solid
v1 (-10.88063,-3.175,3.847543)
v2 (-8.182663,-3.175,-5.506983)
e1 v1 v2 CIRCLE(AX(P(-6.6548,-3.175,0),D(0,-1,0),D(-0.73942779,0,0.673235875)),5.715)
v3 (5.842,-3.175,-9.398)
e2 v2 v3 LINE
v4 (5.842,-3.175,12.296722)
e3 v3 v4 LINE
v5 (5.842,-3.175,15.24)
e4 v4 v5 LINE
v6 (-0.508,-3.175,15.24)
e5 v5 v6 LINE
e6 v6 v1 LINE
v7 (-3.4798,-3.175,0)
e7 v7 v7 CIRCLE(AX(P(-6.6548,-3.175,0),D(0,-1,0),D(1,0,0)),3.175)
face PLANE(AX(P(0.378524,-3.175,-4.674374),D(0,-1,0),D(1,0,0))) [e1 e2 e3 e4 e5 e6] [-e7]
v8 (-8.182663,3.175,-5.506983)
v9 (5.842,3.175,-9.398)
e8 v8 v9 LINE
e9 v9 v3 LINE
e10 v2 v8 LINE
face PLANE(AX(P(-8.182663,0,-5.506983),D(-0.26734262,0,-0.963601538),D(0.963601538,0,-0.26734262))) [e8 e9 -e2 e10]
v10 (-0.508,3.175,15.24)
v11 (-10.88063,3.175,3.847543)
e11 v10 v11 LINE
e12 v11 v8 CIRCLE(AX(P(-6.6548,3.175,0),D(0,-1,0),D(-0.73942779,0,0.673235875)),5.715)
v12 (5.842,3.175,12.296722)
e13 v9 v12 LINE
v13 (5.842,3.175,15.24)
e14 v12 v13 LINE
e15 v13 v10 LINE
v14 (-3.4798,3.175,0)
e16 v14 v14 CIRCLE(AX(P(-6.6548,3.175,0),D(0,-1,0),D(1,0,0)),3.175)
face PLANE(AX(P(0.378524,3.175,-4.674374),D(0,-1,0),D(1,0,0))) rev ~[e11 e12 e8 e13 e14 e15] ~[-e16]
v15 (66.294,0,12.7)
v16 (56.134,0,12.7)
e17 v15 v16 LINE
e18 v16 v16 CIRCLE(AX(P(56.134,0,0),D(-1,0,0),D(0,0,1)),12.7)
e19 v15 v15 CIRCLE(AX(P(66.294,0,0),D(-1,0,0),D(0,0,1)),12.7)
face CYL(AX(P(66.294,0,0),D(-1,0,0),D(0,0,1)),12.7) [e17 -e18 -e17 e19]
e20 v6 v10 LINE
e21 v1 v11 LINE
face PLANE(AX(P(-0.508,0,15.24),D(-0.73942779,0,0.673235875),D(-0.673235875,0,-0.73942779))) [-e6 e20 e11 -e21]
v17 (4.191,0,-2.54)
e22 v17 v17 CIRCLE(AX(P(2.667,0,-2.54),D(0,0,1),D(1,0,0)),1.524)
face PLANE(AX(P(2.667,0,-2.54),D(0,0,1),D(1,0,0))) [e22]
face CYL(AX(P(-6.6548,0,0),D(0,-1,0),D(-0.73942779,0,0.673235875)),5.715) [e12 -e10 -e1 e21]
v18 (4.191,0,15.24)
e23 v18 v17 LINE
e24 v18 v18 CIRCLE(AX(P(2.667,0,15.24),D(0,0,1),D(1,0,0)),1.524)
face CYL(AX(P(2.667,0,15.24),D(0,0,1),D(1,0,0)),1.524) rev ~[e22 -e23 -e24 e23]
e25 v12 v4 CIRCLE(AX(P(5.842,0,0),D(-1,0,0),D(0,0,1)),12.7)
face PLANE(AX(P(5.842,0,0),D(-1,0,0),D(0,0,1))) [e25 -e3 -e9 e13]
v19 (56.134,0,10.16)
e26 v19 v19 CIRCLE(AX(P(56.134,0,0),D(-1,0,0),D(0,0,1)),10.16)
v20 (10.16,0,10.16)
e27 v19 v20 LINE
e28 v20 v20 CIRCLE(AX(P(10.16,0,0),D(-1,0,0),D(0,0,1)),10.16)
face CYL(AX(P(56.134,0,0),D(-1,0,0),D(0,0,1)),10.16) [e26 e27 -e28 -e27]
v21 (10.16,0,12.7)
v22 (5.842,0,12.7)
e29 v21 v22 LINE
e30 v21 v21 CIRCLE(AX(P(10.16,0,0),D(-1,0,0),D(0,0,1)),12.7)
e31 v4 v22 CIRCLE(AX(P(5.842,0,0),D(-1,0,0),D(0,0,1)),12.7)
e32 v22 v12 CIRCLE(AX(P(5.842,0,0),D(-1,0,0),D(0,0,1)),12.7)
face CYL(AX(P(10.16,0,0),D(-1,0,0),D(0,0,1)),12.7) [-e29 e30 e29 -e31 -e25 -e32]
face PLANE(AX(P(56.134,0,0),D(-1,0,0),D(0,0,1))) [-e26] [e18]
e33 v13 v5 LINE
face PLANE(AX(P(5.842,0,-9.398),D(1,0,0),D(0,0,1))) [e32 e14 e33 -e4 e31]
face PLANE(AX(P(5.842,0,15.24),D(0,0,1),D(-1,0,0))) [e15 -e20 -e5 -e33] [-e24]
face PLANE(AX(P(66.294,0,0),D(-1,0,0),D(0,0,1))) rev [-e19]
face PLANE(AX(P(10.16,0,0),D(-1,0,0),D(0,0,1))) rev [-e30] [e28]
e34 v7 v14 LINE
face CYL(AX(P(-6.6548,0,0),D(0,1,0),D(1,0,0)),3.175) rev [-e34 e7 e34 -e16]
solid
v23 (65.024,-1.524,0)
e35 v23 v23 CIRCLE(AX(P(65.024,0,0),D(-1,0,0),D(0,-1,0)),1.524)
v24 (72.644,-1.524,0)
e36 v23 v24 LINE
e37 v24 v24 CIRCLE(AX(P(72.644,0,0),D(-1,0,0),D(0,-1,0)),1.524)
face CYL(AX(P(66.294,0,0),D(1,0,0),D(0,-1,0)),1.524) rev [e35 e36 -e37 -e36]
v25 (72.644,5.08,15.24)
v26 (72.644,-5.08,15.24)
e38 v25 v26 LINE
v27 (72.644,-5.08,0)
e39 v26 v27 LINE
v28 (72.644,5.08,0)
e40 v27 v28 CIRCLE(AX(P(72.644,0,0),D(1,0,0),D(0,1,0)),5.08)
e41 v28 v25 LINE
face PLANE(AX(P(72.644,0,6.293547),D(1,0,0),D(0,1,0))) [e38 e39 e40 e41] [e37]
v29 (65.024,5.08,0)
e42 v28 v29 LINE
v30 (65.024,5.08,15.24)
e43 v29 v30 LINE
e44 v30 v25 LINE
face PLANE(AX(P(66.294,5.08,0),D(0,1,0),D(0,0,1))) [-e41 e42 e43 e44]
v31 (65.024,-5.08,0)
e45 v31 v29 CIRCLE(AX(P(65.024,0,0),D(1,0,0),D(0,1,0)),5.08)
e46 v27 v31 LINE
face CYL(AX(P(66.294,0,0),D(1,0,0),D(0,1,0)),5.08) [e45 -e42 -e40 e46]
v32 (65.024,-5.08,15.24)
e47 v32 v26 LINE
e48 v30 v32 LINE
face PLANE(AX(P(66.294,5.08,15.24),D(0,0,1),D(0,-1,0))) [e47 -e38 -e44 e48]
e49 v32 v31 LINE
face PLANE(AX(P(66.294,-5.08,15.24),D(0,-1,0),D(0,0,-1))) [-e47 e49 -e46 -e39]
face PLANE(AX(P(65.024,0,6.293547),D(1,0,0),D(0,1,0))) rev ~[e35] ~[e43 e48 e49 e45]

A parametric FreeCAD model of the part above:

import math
import FreeCAD as App
import Part
import Sketcher
Q = App.Units.Quantity


def add_polygon(sketch, points):
    """Adds a closed chain of lines whose ends are joined by coincident constraints."""
    first, n = sketch.GeometryCount, len(points)
    for a, b in zip(points, points[1:] + points[:1]):
        sketch.addGeometry(Part.LineSegment(App.Vector(*a, 0), App.Vector(*b, 0)), False)
    for i in range(n):
        sketch.addConstraint(Sketcher.Constraint("Coincident", first + i, 2, first + (i + 1) % n, 1))

doc = App.newDocument("Part")
body = doc.addObject("PartDesign::Body", "Body")

sketch1 = doc.addObject("Sketcher::SketchObject", "Sketch")
body.addObject(sketch1)
sketch1.AttachmentSupport = (doc.XZ_Plane, [""])
sketch1.MapMode = "FlatFace"
add_polygon(sketch1, [(5.8, 12.7), (5.8, 0), (66.3, 0), (66.3, 12.7), (56.1, 12.7), (56.1, 10.2), (10.2, 10.2), (10.2, 12.7)])
sketch1.addConstraint(Sketcher.Constraint("Vertical", 0))
sketch1.addConstraint(Sketcher.Constraint("Horizontal", 1))
sketch1.addConstraint(Sketcher.Constraint("Vertical", 2))
sketch1.addConstraint(Sketcher.Constraint("Horizontal", 3))
sketch1.addConstraint(Sketcher.Constraint("Vertical", 4))
sketch1.addConstraint(Sketcher.Constraint("Horizontal", 5))
sketch1.addConstraint(Sketcher.Constraint("Vertical", 6))
sketch1.addConstraint(Sketcher.Constraint("Horizontal", 7))
sketch1.addConstraint(Sketcher.Constraint("PointOnObject", 0, 2, -1))
sketch1.addConstraint(Sketcher.Constraint("Horizontal", 3, 2, 6, 2))
sketch1.addConstraint(Sketcher.Constraint("DistanceX", 3, 2, 3, 1, Q("0.4 in")))
sketch1.addConstraint(Sketcher.Constraint("DistanceY", 0, 2, 0, 1, Q("0.5 in")))
sketch1.addConstraint(Sketcher.Constraint("DistanceY", 4, 2, 4, 1, Q("0.1 in")))
sketch1.addConstraint(Sketcher.Constraint("DistanceX", 1, 1, 1, 2, Q("2.38 in")))
sketch1.addConstraint(Sketcher.Constraint("DistanceX", 5, 2, 5, 1, Q("1.81 in")))
sketch1.addConstraint(Sketcher.Constraint("DistanceX", -1, 1, 5, 2, Q("0.4 in")))
revolution = doc.addObject("PartDesign::Revolution", "Revolution")
body.addObject(revolution)
revolution.Profile = sketch1
revolution.ReferenceAxis = (sketch1, ["H_Axis"])
revolution.Angle = 360

sketch2 = doc.addObject("Sketcher::SketchObject", "Sketch001")
body.addObject(sketch2)
sketch2.AttachmentSupport = (doc.XZ_Plane, [""])
sketch2.MapMode = "FlatFace"
sketch2.addGeometry(Part.LineSegment(App.Vector(-8.2, -5.5, 0), App.Vector(5.8, -9.4, 0)), False)
sketch2.addGeometry(Part.LineSegment(App.Vector(5.8, -9.4, 0), App.Vector(5.8, 15.2, 0)), False)
sketch2.addGeometry(Part.LineSegment(App.Vector(5.8, 15.2, 0), App.Vector(-0.5, 15.2, 0)), False)
sketch2.addGeometry(Part.LineSegment(App.Vector(-0.5, 15.2, 0), App.Vector(-10.9, 3.8, 0)), False)
sketch2.addGeometry(Part.ArcOfCircle(Part.Circle(App.Vector(-6.7, 0, 0), App.Vector(0, 0, 1), 5.7), math.radians(138), math.radians(254)), False)
sketch2.addGeometry(Part.Circle(App.Vector(-6.7, 0, 0), App.Vector(0, 0, 1), 3.2), False)
sketch2.addConstraint(Sketcher.Constraint("Coincident", 0, 2, 1, 1))
sketch2.addConstraint(Sketcher.Constraint("Coincident", 1, 2, 2, 1))
sketch2.addConstraint(Sketcher.Constraint("Coincident", 2, 2, 3, 1))
sketch2.addConstraint(Sketcher.Constraint("Tangent", 3, 2, 4, 1))
sketch2.addConstraint(Sketcher.Constraint("Tangent", 4, 2, 0, 1))
sketch2.addConstraint(Sketcher.Constraint("Vertical", 1))
sketch2.addConstraint(Sketcher.Constraint("Horizontal", 2))
sketch2.addConstraint(Sketcher.Constraint("Coincident", 5, 3, 4, 3))
sketch2.addConstraint(Sketcher.Constraint("PointOnObject", 4, 3, -1))
sketch2.addConstraint(Sketcher.Constraint("Diameter", 5, Q("0.25 in")))
sketch2.addConstraint(Sketcher.Constraint("Radius", 4, Q("0.225 in")))
sketch2.addConstraint(Sketcher.Constraint("DistanceX", 2, 2, 2, 1, Q("0.25 in")))
sketch2.addConstraint(Sketcher.Constraint("DistanceY", 1, 1, 1, 2, Q("0.97 in")))
sketch2.addConstraint(Sketcher.Constraint("DistanceY", -1, 1, 1, 2, Q("0.6 in")))
sketch2.addConstraint(Sketcher.Constraint("DistanceX", -1, 1, 0, 2, Q("0.23 in")))
sketch2.addConstraint(Sketcher.Constraint("DistanceX", 4, 3, -1, 1, Q("0.262 in")))
pad1 = doc.addObject("PartDesign::Pad", "Pad")
body.addObject(pad1)
pad1.Profile = sketch2
pad1.Length = Q("0.25 in")
pad1.Midplane = True

sketch3 = doc.addObject("Sketcher::SketchObject", "Sketch002")
body.addObject(sketch3)
sketch3.AttachmentSupport = (doc.XY_Plane, [""])
sketch3.MapMode = "FlatFace"
sketch3.AttachmentOffset = App.Placement(App.Vector(0, 0, 0.6 * 25.4), App.Rotation())
sketch3.addGeometry(Part.Circle(App.Vector(2.7, 0, 0), App.Vector(0, 0, 1), 1.5), False)
sketch3.addConstraint(Sketcher.Constraint("PointOnObject", 0, 3, -1))
sketch3.addConstraint(Sketcher.Constraint("Diameter", 0, Q("0.12 in")))
sketch3.addConstraint(Sketcher.Constraint("DistanceX", -1, 1, 0, 3, Q("0.105 in")))
pocket1 = doc.addObject("PartDesign::Pocket", "Pocket")
body.addObject(pocket1)
pocket1.Profile = sketch3
pocket1.Length = Q("0.7 in")
body2 = doc.addObject("PartDesign::Body", "Body001")

sketch4 = doc.addObject("Sketcher::SketchObject", "Sketch003")
body2.addObject(sketch4)
sketch4.AttachmentSupport = (doc.getObject("YZ_Plane001"), [""])
sketch4.MapMode = "FlatFace"
sketch4.AttachmentOffset = App.Placement(App.Vector(0, 0, 2.61 * 25.4), App.Rotation())
sketch4.addGeometry(Part.LineSegment(App.Vector(5.1, 0, 0), App.Vector(5.1, 15.2, 0)), False)
sketch4.addGeometry(Part.LineSegment(App.Vector(5.1, 15.2, 0), App.Vector(-5.1, 15.2, 0)), False)
sketch4.addGeometry(Part.LineSegment(App.Vector(-5.1, 15.2, 0), App.Vector(-5.1, 0, 0)), False)
sketch4.addGeometry(Part.ArcOfCircle(Part.Circle(App.Vector(0, 0, 0), App.Vector(0, 0, 1), 5.1), math.radians(180), math.radians(360)), False)
sketch4.addGeometry(Part.Circle(App.Vector(0, 0, 0), App.Vector(0, 0, 1), 1.5), False)
sketch4.addConstraint(Sketcher.Constraint("Coincident", 0, 2, 1, 1))
sketch4.addConstraint(Sketcher.Constraint("Coincident", 1, 2, 2, 1))
sketch4.addConstraint(Sketcher.Constraint("Tangent", 2, 2, 3, 1))
sketch4.addConstraint(Sketcher.Constraint("Tangent", 3, 2, 0, 1))
sketch4.addConstraint(Sketcher.Constraint("Vertical", 0))
sketch4.addConstraint(Sketcher.Constraint("Horizontal", 1))
sketch4.addConstraint(Sketcher.Constraint("Vertical", 2))
sketch4.addConstraint(Sketcher.Constraint("Coincident", 3, 3, -1, 1))
sketch4.addConstraint(Sketcher.Constraint("Coincident", 4, 3, -1, 1))
sketch4.addConstraint(Sketcher.Constraint("Radius", 3, Q("0.2 in")))
sketch4.addConstraint(Sketcher.Constraint("Diameter", 4, Q("0.12 in")))
sketch4.addConstraint(Sketcher.Constraint("DistanceY", 0, 1, 0, 2, Q("0.6 in")))
pad2 = doc.addObject("PartDesign::Pad", "Pad001")
body2.addObject(pad2)
pad2.Profile = sketch4
pad2.Type = "TwoLengths"
pad2.Length = Q("0.25 in")
pad2.Length2 = Q("0.05 in")

doc.recompute()
